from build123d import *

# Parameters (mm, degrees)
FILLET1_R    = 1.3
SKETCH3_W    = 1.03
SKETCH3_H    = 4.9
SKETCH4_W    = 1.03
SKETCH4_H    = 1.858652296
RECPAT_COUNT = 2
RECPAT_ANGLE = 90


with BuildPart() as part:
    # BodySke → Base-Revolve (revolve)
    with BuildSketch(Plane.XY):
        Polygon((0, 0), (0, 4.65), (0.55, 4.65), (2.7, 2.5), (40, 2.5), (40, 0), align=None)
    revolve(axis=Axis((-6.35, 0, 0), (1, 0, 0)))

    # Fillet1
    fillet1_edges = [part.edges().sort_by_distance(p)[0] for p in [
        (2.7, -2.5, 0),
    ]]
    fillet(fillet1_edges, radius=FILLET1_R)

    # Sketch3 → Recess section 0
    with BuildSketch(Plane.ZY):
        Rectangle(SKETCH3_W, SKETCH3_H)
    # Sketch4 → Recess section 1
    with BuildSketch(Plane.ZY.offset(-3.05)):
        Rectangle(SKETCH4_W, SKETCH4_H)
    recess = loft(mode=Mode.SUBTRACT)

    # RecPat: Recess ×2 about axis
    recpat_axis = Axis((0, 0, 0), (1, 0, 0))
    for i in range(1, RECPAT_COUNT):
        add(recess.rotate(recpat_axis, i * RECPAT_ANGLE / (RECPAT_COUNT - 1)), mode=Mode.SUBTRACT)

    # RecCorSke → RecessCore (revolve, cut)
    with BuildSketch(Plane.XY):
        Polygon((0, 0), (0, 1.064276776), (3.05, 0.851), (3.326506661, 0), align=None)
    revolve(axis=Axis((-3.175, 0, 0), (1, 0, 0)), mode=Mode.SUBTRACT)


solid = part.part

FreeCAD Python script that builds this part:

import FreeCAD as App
import Part
import Sketcher

V = App.Vector
Q = App.Units.Quantity


def edges_at(feature, points):
    """Names of the edges that pass closest to the given points."""
    edges = feature.Shape.Edges
    near = lambda p: min(range(len(edges)), key=lambda i: edges[i].distToShape(Part.Vertex(*p))[0])
    return sorted({f"Edge{near(p) + 1}" for p in points})


def add_polygon(sketch, points):
    """Adds a closed chain of lines whose ends are joined by coincident constraints."""
    first, n = sketch.GeometryCount, len(points)
    for a, b in zip(points, points[1:] + points[:1]):
        sketch.addGeometry(Part.LineSegment(App.Vector(*a, 0), App.Vector(*b, 0)), False)
    for i in range(n):
        sketch.addConstraint(Sketcher.Constraint("Coincident", first + i, 2, first + (i + 1) % n, 1))

doc = App.newDocument("Part")
body = doc.addObject("PartDesign::Body", "Body")

# Sketch on XY plane
sketch1 = body.newObject("Sketcher::SketchObject", "Sketch")
sketch1.AttachmentSupport = (doc.getObject("XY_Plane"), [""])
sketch1.MapMode = "FlatFace"
add_polygon(sketch1, [(0, 4.7), (0, 0), (40, 0), (40, 2.5), (2.7, 2.5), (0.6, 4.7)])  # lines 0-5
sketch1.addConstraint([
    Sketcher.Constraint("Vertical", 0),
    Sketcher.Constraint("Horizontal", 1),
    Sketcher.Constraint("Vertical", 2),
    Sketcher.Constraint("Horizontal", 3),
    Sketcher.Constraint("Horizontal", 5),
    Sketcher.Constraint("Coincident", 0, 2, -1, 1),
    Sketcher.Constraint("DistanceX", 1, 1, 1, 2, Q("40 mm")),
    Sketcher.Constraint("Angle", 4, Q("135 deg")),
    Sketcher.Constraint("DistanceX", 3, 2, 3, 1, Q("37.3 mm")),
    Sketcher.Constraint("DistanceY", 2, 1, 2, 2, Q("2.5 mm")),
    Sketcher.Constraint("DistanceX", 5, 2, 5, 1, Q("0.55 mm")),
])
revolution = body.newObject("PartDesign::Revolution", "Revolution")
revolution.Profile = sketch1
revolution.ReferenceAxis = (sketch1, ["H_Axis"])
revolution.Angle = 360
doc.recompute()

fillet = body.newObject("PartDesign::Fillet", "Fillet")
fillet.Base = (revolution, edges_at(revolution, [(2.7, -2.5, 0)]))
fillet.Radius = 1.3

# Sketch on YZ plane
sketch2 = body.newObject("Sketcher::SketchObject", "Sketch001")
sketch2.AttachmentSupport = (doc.getObject("YZ_Plane"), [""])
sketch2.MapMode = "FlatFace"
add_polygon(sketch2, [(2.5, -0.5), (-2.5, -0.5), (-2.5, 0.5), (2.5, 0.5)])  # lines 0-3
sketch2.addConstraint([
    Sketcher.Constraint("Horizontal", 0),
    Sketcher.Constraint("Vertical", 1),
    Sketcher.Constraint("Horizontal", 2),
    Sketcher.Constraint("Vertical", 3),
    Sketcher.Constraint("Symmetric", 0, 2, 2, 2, -1, 1),
    Sketcher.Constraint("DistanceX", 0, 2, 0, 1, Q("4.9 mm")),
    Sketcher.Constraint("DistanceY", 1, 1, 1, 2, Q("1.03 mm")),
])

# Sketch on YZ plane
sketch3 = body.newObject("Sketcher::SketchObject", "Sketch002")
sketch3.AttachmentSupport = (doc.getObject("YZ_Plane"), [""])
sketch3.MapMode = "FlatFace"
sketch3.AttachmentOffset = App.Placement(V(0, 0, 3.05), App.Rotation())
add_polygon(sketch3, [(0.9, -0.5), (-0.9, -0.5), (-0.9, 0.5), (0.9, 0.5)])  # lines 0-3
sketch3.addConstraint([
    Sketcher.Constraint("Horizontal", 0),
    Sketcher.Constraint("Vertical", 1),
    Sketcher.Constraint("Horizontal", 2),
    Sketcher.Constraint("Vertical", 3),
    Sketcher.Constraint("Symmetric", 0, 2, 2, 2, -1, 1),
    Sketcher.Constraint("DistanceY", 1, 1, 1, 2, Q("1.03 mm")),
    Sketcher.Constraint("DistanceX", 0, 2, 0, 1, Q("1.858652 mm")),
])

subtractiveloft = body.newObject("PartDesign::SubtractiveLoft", "SubtractiveLoft")
subtractiveloft.Profile = sketch2
subtractiveloft.Sections = [sketch3]
doc.recompute()

polarpattern = body.newObject("PartDesign::PolarPattern", "PolarPattern")
polarpattern.Originals = [subtractiveloft]
polarpattern.Axis = (doc.getObject("X_Axis"), [""])
polarpattern.Angle = 90
polarpattern.Occurrences = 2
body.Tip = polarpattern

# Sketch on XY plane
sketch4 = body.newObject("Sketcher::SketchObject", "Sketch003")
sketch4.AttachmentSupport = (doc.getObject("XY_Plane"), [""])
sketch4.MapMode = "FlatFace"
add_polygon(sketch4, [(0, 1.1), (0, 0), (3.3, 0), (3, 0.9)])  # lines 0-3
sketch4.addConstraint([
    Sketcher.Constraint("Vertical", 0),
    Sketcher.Constraint("Horizontal", 1),
    Sketcher.Constraint("Coincident", 0, 2, -1, 1),
    Sketcher.Constraint("Angle", 2, Q("108 deg")),
    Sketcher.Constraint("Angle", 3, Q("176 deg")),
    Sketcher.Constraint("DistanceX", -1, 1, 2, 2, Q("3.05 mm")),
    Sketcher.Constraint("DistanceY", -1, 1, 2, 2, Q("0.851 mm")),
])
groove = body.newObject("PartDesign::Groove", "Groove")
groove.Profile = sketch4
groove.ReferenceAxis = (sketch4, ["H_Axis"])
groove.Angle = 360

doc.recompute()
